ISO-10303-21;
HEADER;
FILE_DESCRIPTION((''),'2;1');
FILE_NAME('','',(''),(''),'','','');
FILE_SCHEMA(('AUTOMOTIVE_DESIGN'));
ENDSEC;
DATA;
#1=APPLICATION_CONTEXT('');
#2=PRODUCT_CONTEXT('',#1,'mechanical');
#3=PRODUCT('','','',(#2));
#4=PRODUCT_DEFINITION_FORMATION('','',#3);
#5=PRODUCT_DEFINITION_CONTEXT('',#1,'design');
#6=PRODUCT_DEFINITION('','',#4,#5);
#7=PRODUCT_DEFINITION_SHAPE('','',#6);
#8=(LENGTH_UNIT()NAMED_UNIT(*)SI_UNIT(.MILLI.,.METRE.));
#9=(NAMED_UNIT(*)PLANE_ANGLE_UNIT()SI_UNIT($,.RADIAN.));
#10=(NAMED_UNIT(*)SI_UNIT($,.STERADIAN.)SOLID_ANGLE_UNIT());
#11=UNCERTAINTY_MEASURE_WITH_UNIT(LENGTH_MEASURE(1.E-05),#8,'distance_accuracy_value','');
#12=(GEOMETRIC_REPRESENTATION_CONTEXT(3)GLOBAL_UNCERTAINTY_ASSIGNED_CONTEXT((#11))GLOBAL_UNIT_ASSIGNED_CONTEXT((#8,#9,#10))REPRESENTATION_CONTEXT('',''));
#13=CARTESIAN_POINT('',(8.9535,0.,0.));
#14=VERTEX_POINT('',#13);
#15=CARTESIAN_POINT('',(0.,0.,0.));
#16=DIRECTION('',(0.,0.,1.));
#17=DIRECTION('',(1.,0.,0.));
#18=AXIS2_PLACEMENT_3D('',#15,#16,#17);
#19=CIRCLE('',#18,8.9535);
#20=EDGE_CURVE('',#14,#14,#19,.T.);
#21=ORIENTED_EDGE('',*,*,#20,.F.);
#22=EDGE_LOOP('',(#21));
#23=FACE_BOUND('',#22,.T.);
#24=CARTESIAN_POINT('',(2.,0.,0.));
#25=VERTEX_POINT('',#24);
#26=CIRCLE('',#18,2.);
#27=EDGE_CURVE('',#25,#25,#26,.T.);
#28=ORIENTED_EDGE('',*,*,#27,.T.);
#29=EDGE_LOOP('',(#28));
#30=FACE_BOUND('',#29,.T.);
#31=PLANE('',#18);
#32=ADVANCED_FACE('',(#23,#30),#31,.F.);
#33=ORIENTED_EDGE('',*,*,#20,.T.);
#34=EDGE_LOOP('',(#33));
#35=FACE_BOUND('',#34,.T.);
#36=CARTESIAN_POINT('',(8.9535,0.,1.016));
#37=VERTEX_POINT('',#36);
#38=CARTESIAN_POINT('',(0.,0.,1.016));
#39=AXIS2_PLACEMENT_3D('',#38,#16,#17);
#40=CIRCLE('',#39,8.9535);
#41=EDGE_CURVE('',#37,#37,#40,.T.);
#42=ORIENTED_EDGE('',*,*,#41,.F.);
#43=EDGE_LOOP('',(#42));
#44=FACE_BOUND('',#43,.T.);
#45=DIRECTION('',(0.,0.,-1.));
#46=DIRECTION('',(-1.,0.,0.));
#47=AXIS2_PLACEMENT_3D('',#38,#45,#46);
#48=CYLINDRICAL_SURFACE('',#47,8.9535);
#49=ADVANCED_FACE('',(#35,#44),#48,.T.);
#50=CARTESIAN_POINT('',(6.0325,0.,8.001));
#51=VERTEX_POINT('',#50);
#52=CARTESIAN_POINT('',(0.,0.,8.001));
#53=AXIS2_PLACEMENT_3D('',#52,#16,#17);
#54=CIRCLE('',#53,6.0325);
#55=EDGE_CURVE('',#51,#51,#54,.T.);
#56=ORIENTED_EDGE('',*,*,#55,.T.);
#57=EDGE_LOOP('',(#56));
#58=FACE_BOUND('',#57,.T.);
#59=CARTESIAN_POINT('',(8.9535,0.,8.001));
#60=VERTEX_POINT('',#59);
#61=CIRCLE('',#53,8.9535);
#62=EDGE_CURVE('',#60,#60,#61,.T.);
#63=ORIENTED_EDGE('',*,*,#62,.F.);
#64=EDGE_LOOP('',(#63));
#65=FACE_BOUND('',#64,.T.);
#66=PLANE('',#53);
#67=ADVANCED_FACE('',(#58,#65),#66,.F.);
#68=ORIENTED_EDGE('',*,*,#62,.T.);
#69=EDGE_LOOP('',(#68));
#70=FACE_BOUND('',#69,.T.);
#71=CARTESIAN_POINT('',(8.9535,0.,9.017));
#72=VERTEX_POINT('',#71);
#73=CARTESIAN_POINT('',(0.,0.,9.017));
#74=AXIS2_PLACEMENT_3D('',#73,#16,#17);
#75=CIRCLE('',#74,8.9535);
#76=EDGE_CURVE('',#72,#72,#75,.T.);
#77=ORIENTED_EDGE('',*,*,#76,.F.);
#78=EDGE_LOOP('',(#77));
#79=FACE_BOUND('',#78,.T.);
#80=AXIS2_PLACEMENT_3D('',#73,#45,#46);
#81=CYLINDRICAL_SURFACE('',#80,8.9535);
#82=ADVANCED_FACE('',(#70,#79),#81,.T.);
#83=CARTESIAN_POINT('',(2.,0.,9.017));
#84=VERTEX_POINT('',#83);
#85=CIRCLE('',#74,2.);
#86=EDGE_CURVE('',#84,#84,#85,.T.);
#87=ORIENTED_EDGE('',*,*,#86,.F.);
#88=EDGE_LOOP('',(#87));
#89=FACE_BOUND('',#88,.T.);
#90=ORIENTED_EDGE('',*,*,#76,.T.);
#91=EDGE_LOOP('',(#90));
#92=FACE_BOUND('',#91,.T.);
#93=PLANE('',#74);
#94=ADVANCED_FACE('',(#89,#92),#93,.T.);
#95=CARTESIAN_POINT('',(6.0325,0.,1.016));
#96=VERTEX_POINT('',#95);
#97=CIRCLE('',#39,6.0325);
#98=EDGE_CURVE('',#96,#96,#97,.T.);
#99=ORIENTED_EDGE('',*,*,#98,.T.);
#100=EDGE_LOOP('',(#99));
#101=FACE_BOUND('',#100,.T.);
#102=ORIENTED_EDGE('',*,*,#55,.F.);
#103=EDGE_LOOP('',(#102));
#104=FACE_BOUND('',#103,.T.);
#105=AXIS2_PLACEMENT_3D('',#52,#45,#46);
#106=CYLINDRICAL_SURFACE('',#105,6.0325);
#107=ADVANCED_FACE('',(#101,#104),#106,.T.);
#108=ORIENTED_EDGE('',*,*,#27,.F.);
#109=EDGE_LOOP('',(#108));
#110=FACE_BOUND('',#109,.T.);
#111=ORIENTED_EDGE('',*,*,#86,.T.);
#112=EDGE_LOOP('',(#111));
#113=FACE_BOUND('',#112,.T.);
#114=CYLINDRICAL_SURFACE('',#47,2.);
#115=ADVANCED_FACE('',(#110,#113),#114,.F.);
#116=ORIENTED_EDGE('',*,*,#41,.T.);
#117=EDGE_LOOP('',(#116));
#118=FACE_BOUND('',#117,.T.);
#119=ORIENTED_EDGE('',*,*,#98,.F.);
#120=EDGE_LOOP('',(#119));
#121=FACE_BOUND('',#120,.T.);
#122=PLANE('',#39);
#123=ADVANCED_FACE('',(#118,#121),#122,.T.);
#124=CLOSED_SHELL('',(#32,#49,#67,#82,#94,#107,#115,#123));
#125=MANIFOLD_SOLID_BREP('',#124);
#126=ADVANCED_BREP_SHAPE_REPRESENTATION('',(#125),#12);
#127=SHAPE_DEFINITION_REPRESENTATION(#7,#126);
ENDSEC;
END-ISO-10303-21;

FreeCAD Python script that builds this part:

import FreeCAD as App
import Part
import Sketcher
from FreeCAD import Vector
Q = App.Units.Quantity

doc = App.newDocument("Part")
body = doc.addObject("PartDesign::Body", "Body")

# Sketch on XY plane
sketch1 = body.newObject("Sketcher::SketchObject", "Sketch")
sketch1.AttachmentSupport = (doc.getObject("XY_Plane"), [""])
sketch1.MapMode = "FlatFace"
sketch1.addGeometry([
    Part.Circle(Vector(0, 0, 0), Vector(0, 0, 1), 8.9535),
    Part.Circle(Vector(0, 0, 0), Vector(0, 0, 1), 2),
], False)
sketch1.addConstraint([
    Sketcher.Constraint("Coincident", 0, 3, -1, 1),
    Sketcher.Constraint("Coincident", 1, 3, -1, 1),
    Sketcher.Constraint("Diameter", 0, Q("0.705 in")),
    Sketcher.Constraint("Diameter", 1, 4.0),
])
pad1 = body.newObject("PartDesign::Pad", "Pad")
pad1.Profile = sketch1
pad1.Length = Q("0.04 in")

# Sketch on XY plane
sketch2 = body.newObject("Sketcher::SketchObject", "Sketch001")
sketch2.AttachmentSupport = (doc.getObject("XY_Plane"), [""])
sketch2.MapMode = "FlatFace"
sketch2.AttachmentOffset = App.Placement(Vector(0, 0, 0.04 * 25.4), App.Rotation())
sketch2.addGeometry([
    Part.Circle(Vector(0, 0, 0), Vector(0, 0, 1), 6.0325),
    Part.Circle(Vector(0, 0, 0), Vector(0, 0, 1), 2),
], False)
sketch2.addConstraint([
    Sketcher.Constraint("Coincident", 0, 3, -1, 1),
    Sketcher.Constraint("Coincident", 1, 3, -1, 1),
    Sketcher.Constraint("Diameter", 0, Q("0.475 in")),
    Sketcher.Constraint("Diameter", 1, 4.0),
])
pad2 = body.newObject("PartDesign::Pad", "Pad001")
pad2.Profile = sketch2
pad2.Length = Q("0.275 in")

# Sketch on XY plane
sketch3 = body.newObject("Sketcher::SketchObject", "Sketch002")
sketch3.AttachmentSupport = (doc.getObject("XY_Plane"), [""])
sketch3.MapMode = "FlatFace"
sketch3.AttachmentOffset = App.Placement(Vector(0, 0, 0.315 * 25.4), App.Rotation())
sketch3.addGeometry([
    Part.Circle(Vector(0, 0, 0), Vector(0, 0, 1), 8.9535),
    Part.Circle(Vector(0, 0, 0), Vector(0, 0, 1), 2),
], False)
sketch3.addConstraint([
    Sketcher.Constraint("Coincident", 0, 3, -1, 1),
    Sketcher.Constraint("Coincident", 1, 3, -1, 1),
    Sketcher.Constraint("Diameter", 0, Q("0.705 in")),
    Sketcher.Constraint("Diameter", 1, 4.0),
])
pad3 = body.newObject("PartDesign::Pad", "Pad002")
pad3.Profile = sketch3
pad3.Length = Q("0.04 in")

doc.recompute()
